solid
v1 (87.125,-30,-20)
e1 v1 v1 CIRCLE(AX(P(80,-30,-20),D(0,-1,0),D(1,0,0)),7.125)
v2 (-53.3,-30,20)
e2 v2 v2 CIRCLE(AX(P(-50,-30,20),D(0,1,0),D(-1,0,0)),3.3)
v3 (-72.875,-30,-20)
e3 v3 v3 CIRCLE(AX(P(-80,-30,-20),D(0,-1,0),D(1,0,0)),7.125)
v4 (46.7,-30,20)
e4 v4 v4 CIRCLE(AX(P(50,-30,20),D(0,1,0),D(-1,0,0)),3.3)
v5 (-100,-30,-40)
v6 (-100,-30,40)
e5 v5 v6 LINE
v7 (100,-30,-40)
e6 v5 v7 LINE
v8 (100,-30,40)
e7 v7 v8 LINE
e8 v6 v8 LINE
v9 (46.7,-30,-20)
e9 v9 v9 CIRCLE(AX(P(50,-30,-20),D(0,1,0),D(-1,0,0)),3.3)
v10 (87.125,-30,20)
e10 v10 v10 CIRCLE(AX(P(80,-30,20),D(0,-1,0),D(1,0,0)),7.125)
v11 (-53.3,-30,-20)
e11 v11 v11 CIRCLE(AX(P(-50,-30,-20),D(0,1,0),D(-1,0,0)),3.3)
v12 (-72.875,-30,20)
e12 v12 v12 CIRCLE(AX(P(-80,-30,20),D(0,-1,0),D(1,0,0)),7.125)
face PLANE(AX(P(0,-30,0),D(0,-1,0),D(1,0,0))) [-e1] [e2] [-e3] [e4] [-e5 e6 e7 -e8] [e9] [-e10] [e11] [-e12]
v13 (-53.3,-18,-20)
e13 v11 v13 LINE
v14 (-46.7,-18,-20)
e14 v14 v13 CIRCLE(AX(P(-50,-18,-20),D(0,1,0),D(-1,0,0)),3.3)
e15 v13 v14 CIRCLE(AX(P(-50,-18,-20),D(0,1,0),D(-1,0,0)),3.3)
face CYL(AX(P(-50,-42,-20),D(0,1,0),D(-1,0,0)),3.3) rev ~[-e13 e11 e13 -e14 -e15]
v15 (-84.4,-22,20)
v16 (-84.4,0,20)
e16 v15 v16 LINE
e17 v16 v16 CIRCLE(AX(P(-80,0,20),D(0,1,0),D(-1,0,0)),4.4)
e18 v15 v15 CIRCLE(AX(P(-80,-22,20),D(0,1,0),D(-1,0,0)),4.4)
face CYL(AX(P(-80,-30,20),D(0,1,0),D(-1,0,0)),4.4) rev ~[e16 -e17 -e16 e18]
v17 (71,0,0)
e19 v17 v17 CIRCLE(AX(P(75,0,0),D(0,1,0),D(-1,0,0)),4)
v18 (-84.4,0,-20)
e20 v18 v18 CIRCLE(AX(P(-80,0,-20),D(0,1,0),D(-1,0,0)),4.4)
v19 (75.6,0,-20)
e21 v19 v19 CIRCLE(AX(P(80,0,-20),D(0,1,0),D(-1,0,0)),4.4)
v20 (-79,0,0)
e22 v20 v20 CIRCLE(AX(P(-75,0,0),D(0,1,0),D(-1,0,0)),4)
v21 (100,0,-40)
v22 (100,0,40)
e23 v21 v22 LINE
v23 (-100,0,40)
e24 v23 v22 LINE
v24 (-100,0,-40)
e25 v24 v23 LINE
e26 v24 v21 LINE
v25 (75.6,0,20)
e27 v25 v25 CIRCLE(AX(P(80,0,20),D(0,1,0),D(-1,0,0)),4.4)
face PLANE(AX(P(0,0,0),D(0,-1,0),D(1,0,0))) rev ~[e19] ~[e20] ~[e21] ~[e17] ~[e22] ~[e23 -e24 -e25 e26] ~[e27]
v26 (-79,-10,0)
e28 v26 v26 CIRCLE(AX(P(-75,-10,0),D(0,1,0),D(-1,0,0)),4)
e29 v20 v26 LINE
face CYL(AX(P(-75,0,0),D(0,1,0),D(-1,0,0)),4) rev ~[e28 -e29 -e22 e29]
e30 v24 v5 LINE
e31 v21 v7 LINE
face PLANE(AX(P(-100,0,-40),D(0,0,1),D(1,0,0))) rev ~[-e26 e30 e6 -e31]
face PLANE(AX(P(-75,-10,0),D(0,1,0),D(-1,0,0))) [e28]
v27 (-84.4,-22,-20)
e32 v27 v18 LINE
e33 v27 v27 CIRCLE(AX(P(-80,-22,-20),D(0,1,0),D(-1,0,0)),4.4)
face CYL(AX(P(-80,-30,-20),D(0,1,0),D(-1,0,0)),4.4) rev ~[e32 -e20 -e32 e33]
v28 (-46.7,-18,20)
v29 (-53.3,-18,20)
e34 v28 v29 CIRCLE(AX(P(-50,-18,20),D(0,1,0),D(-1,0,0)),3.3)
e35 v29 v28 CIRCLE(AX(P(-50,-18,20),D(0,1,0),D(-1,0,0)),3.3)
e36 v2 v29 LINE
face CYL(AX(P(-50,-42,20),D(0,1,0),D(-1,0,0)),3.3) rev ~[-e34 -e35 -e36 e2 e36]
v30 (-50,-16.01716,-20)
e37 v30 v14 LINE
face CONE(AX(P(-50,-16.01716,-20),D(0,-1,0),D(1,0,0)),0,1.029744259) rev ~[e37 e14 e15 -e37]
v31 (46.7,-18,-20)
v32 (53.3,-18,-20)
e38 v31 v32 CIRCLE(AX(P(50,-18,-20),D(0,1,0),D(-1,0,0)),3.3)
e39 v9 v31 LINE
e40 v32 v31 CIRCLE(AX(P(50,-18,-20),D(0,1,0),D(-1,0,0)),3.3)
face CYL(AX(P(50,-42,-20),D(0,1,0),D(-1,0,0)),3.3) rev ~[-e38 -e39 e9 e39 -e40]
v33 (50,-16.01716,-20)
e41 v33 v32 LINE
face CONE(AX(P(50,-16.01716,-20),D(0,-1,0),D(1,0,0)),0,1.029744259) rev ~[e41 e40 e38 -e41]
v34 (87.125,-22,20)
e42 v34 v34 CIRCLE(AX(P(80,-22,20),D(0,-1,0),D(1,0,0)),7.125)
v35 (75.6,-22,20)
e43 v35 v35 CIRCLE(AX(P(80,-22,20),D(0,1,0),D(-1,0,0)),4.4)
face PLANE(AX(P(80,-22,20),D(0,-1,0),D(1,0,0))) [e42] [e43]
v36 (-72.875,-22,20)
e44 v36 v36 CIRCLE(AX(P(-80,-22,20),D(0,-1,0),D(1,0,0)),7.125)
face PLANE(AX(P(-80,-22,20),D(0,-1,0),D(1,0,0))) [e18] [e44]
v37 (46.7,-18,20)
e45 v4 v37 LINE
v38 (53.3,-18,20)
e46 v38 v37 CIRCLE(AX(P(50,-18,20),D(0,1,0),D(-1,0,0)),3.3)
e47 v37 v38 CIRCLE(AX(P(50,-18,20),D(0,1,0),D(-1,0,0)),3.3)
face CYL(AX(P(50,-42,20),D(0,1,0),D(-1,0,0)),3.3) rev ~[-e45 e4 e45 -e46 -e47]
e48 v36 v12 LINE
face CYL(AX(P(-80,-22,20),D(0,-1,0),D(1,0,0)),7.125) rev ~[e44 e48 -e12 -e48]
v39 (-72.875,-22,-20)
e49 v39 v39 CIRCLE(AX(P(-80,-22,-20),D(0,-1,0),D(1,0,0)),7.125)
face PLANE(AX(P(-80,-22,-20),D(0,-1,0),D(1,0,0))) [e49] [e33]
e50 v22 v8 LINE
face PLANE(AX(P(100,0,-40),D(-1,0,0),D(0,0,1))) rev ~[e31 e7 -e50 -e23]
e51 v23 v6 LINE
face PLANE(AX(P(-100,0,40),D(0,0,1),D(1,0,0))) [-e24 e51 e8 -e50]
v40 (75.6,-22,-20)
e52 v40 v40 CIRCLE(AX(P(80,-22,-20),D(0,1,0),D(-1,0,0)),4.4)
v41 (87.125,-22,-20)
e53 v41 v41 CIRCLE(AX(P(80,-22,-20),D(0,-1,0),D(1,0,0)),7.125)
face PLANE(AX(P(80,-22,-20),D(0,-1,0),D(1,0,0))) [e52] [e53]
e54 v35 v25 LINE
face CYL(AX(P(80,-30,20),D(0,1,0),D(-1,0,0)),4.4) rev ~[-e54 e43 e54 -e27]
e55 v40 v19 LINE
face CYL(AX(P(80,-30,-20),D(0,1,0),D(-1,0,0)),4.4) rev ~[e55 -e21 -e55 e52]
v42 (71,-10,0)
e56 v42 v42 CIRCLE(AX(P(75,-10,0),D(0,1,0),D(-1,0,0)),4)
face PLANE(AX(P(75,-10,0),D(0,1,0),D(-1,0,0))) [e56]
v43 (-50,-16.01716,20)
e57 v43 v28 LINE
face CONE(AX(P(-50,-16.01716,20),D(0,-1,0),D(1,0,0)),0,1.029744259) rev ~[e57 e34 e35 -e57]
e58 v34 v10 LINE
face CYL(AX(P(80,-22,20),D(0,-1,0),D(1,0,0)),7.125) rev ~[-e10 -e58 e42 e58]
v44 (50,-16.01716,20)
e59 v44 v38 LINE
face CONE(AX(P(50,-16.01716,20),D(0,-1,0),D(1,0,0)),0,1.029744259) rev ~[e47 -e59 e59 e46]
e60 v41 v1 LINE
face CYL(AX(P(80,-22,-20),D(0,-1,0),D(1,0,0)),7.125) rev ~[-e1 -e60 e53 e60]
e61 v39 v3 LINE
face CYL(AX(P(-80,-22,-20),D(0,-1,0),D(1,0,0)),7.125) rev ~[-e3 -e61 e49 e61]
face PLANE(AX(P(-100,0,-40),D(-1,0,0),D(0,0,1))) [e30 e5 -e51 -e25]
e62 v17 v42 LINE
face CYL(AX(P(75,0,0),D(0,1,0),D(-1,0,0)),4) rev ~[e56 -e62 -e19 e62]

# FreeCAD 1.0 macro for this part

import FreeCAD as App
import Part
import Sketcher


def add_polygon(sketch, points):
    """Adds a closed chain of lines whose ends are joined by coincident constraints."""
    first, n = sketch.GeometryCount, len(points)
    for a, b in zip(points, points[1:] + points[:1]):
        sketch.addGeometry(Part.LineSegment(App.Vector(*a, 0), App.Vector(*b, 0)), False)
    for i in range(n):
        sketch.addConstraint(Sketcher.Constraint("Coincident", first + i, 2, first + (i + 1) % n, 1))

doc = App.newDocument("Part")
body = doc.addObject("PartDesign::Body", "Body")

# Sketch on XZ plane
sketch1 = body.newObject("Sketcher::SketchObject", "Sketch")
sketch1.AttachmentSupport = (doc.getObject("XZ_Plane"), [""])
sketch1.MapMode = "FlatFace"
add_polygon(sketch1, [(-100, 40), (-100, -40), (100, -40), (100, 40)])  # lines 0-3
sketch1.addConstraint([
    Sketcher.Constraint("Vertical", 0),
    Sketcher.Constraint("Horizontal", 1),
    Sketcher.Constraint("Vertical", 2),
    Sketcher.Constraint("Horizontal", 3),
    Sketcher.Constraint("Symmetric", 0, 2, 2, 2, -1, 1),
    Sketcher.Constraint("DistanceX", 1, 1, 1, 2, 200.0),
    Sketcher.Constraint("DistanceY", 0, 2, 0, 1, 80.0),
])
pad1 = body.newObject("PartDesign::Pad", "Pad")
pad1.Profile = sketch1
pad1.Length = 30

# Sketch on XZ plane
sketch2 = body.newObject("Sketcher::SketchObject", "Sketch001")
sketch2.AttachmentSupport = (doc.getObject("XZ_Plane"), [""])
sketch2.MapMode = "FlatFace"
sketch2.addGeometry([
    Part.Circle(App.Vector(75, 0, 0), App.Vector(0, 0, 1), 4),
    Part.Circle(App.Vector(-75, 0, 0), App.Vector(0, 0, 1), 4),
], False)
sketch2.addConstraint([
    Sketcher.Constraint("Equal", 0, 1),
    Sketcher.Constraint("Symmetric", 0, 3, 1, 3, -1, 1),
    Sketcher.Constraint("PointOnObject", 0, 3, -1),
    Sketcher.Constraint("Diameter", 0, 8.0),
    Sketcher.Constraint("DistanceX", -1, 1, 0, 3, 75.0),
])
pocket1 = body.newObject("PartDesign::Pocket", "Pocket")
pocket1.Profile = sketch2
pocket1.Length = 10
pocket1.Reversed = True

# Sketch on XZ plane
sketch3 = body.newObject("Sketcher::SketchObject", "Sketch002")
sketch3.AttachmentSupport = (doc.getObject("XZ_Plane"), [""])
sketch3.MapMode = "FlatFace"
sketch3.AttachmentOffset = App.Placement(App.Vector(0, 0, 30), App.Rotation())
sketch3.addGeometry([
    Part.Circle(App.Vector(-80, 20, 0), App.Vector(0, 0, 1), 4.4),
    Part.Circle(App.Vector(-80, -20, 0), App.Vector(0, 0, 1), 4.4),
    Part.Circle(App.Vector(80, 20, 0), App.Vector(0, 0, 1), 4.4),
    Part.Circle(App.Vector(80, -20, 0), App.Vector(0, 0, 1), 4.4),
], False)
sketch3.addConstraint([
    Sketcher.Constraint("Equal", 0, 1),
    Sketcher.Constraint("Equal", 1, 2),
    Sketcher.Constraint("Equal", 2, 3),
    Sketcher.Constraint("Symmetric", 1, 3, 2, 3, -1, 1),
    Sketcher.Constraint("Symmetric", 0, 3, 3, 3, -1, 1),
    Sketcher.Constraint("Symmetric", 0, 3, 2, 3, -2),
    Sketcher.Constraint("Diameter", 0, 8.8),
    Sketcher.Constraint("DistanceX", 0, 3, -1, 1, 80.0),
    Sketcher.Constraint("DistanceY", -1, 1, 0, 3, 20.0),
])
doc.recompute()
hole = body.newObject("PartDesign::Hole", "Hole")
hole.Profile = sketch3
hole.ThreadType = "None"
hole.Diameter = 8.8
hole.DepthType = "ThroughAll"
hole.HoleCutType = "Counterbore"
hole.HoleCutDiameter = 14.25
hole.HoleCutDepth = 8

# Sketch on XZ plane
sketch4 = body.newObject("Sketcher::SketchObject", "Sketch003")
sketch4.AttachmentSupport = (doc.getObject("XZ_Plane"), [""])
sketch4.MapMode = "FlatFace"
sketch4.AttachmentOffset = App.Placement(App.Vector(0, 0, 30), App.Rotation())
sketch4.addGeometry([
    Part.Circle(App.Vector(-50, -20, 0), App.Vector(0, 0, 1), 3.3),
    Part.Circle(App.Vector(-50, 20, 0), App.Vector(0, 0, 1), 3.3),
    Part.Circle(App.Vector(50, 20, 0), App.Vector(0, 0, 1), 3.3),
    Part.Circle(App.Vector(50, -20, 0), App.Vector(0, 0, 1), 3.3),
], False)
sketch4.addConstraint([
    Sketcher.Constraint("Equal", 0, 1),
    Sketcher.Constraint("Equal", 1, 2),
    Sketcher.Constraint("Equal", 2, 3),
    Sketcher.Constraint("Symmetric", 0, 3, 2, 3, -1, 1),
    Sketcher.Constraint("Symmetric", 1, 3, 3, 3, -1, 1),
    Sketcher.Constraint("Symmetric", 1, 3, 2, 3, -2),
    Sketcher.Constraint("Diameter", 0, 6.6),
    Sketcher.Constraint("DistanceX", 0, 3, -1, 1, 50.0),
    Sketcher.Constraint("DistanceY", 0, 3, -1, 1, 20.0),
])
doc.recompute()
hole2 = body.newObject("PartDesign::Hole", "Hole001")
hole2.Profile = sketch4
hole2.ThreadType = "None"
hole2.Diameter = 6.6
hole2.DepthType = "Dimension"
hole2.Depth = 12
hole2.DrillPoint = "Angled"
hole2.DrillPointAngle = 118

doc.recompute()
